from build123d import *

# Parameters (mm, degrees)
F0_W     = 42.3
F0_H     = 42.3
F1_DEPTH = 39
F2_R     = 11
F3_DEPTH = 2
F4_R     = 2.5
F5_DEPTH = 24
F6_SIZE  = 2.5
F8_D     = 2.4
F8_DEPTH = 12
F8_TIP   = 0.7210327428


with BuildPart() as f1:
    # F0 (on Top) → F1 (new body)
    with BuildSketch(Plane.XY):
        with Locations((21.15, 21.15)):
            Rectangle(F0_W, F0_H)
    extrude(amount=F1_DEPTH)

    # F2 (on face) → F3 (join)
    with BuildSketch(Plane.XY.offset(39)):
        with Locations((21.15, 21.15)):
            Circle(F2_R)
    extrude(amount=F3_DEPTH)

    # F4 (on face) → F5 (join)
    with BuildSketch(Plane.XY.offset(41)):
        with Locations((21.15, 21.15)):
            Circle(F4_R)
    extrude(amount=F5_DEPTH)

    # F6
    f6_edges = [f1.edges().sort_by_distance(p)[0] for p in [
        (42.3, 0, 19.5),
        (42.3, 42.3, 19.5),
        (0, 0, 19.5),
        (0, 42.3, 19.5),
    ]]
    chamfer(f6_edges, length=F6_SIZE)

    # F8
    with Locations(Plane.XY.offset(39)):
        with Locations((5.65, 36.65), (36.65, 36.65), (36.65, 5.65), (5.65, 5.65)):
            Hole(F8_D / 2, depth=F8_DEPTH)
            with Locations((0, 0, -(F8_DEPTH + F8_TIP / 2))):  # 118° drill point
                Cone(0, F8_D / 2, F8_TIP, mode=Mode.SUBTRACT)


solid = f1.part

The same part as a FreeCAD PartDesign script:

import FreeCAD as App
import Part
import Sketcher


def edges_at(feature, points):
    """Names of the edges that pass closest to the given points."""
    edges = feature.Shape.Edges
    near = lambda p: min(range(len(edges)), key=lambda i: edges[i].distToShape(Part.Vertex(*p))[0])
    return sorted({f"Edge{near(p) + 1}" for p in points})

doc = App.newDocument("Part")
body = doc.addObject("PartDesign::Body", "Body")

sketch1 = doc.addObject("Sketcher::SketchObject", "Sketch")
body.addObject(sketch1)
sketch1.AttachmentSupport = (doc.XY_Plane, [""])
sketch1.MapMode = "FlatFace"
sketch1.addGeometry(Part.LineSegment(App.Vector(0, 42, 0), App.Vector(0, 0, 0)), False)
sketch1.addGeometry(Part.LineSegment(App.Vector(0, 0, 0), App.Vector(42, 0, 0)), False)
sketch1.addGeometry(Part.LineSegment(App.Vector(42, 0, 0), App.Vector(42, 42, 0)), False)
sketch1.addGeometry(Part.LineSegment(App.Vector(42, 42, 0), App.Vector(0, 42, 0)), False)
sketch1.addConstraint(Sketcher.Constraint("Coincident", 0, 2, 1, 1))
sketch1.addConstraint(Sketcher.Constraint("Coincident", 1, 2, 2, 1))
sketch1.addConstraint(Sketcher.Constraint("Coincident", 2, 2, 3, 1))
sketch1.addConstraint(Sketcher.Constraint("Coincident", 3, 2, 0, 1))
sketch1.addConstraint(Sketcher.Constraint("Vertical", 0))
sketch1.addConstraint(Sketcher.Constraint("Horizontal", 1))
sketch1.addConstraint(Sketcher.Constraint("Vertical", 2))
sketch1.addConstraint(Sketcher.Constraint("Horizontal", 3))
sketch1.addConstraint(Sketcher.Constraint("Coincident", 0, 2, -1, 1))
sketch1.addConstraint(Sketcher.Constraint("Equal", 3, 0))
sketch1.addConstraint(Sketcher.Constraint("DistanceX", 1, 1, 1, 2, 42.3))
pad1 = doc.addObject("PartDesign::Pad", "Pad")
body.addObject(pad1)
pad1.Profile = sketch1
pad1.Length = 39

sketch2 = doc.addObject("Sketcher::SketchObject", "Sketch001")
body.addObject(sketch2)
sketch2.AttachmentSupport = (doc.XY_Plane, [""])
sketch2.MapMode = "FlatFace"
sketch2.AttachmentOffset = App.Placement(App.Vector(0, 0, 39), App.Rotation())
sketch2.addGeometry(Part.Circle(App.Vector(21, 21, 0), App.Vector(0, 0, 1), 11), False)
sketch2.addConstraint(Sketcher.Constraint("Diameter", 0, 22.0))
sketch2.addConstraint(Sketcher.Constraint("DistanceX", -1, 1, 0, 3, 21.15))
sketch2.addConstraint(Sketcher.Constraint("DistanceY", -1, 1, 0, 3, 21.15))
pad2 = doc.addObject("PartDesign::Pad", "Pad001")
body.addObject(pad2)
pad2.Profile = sketch2
pad2.Length = 2

sketch3 = doc.addObject("Sketcher::SketchObject", "Sketch002")
body.addObject(sketch3)
sketch3.AttachmentSupport = (doc.XY_Plane, [""])
sketch3.MapMode = "FlatFace"
sketch3.AttachmentOffset = App.Placement(App.Vector(0, 0, 41), App.Rotation())
sketch3.addGeometry(Part.Circle(App.Vector(21.1, 21.1, 0), App.Vector(0, 0, 1), 2.5), False)
sketch3.addConstraint(Sketcher.Constraint("Diameter", 0, 5.0))
sketch3.addConstraint(Sketcher.Constraint("DistanceX", -1, 1, 0, 3, 21.15))
sketch3.addConstraint(Sketcher.Constraint("DistanceY", -1, 1, 0, 3, 21.15))
pad3 = doc.addObject("PartDesign::Pad", "Pad002")
body.addObject(pad3)
pad3.Profile = sketch3
pad3.Length = 24
doc.recompute()

chamfer = doc.addObject("PartDesign::Chamfer", "Chamfer")
body.addObject(chamfer)
chamfer.Base = (pad3, edges_at(pad3, [
    (42.3, 0, 19.5),
    (42.3, 42.3, 19.5),
    (0, 0, 19.5),
    (0, 42.3, 19.5),
]))
chamfer.Size = 2.5

sketch4 = doc.addObject("Sketcher::SketchObject", "Sketch003")
body.addObject(sketch4)
sketch4.AttachmentSupport = (doc.XY_Plane, [""])
sketch4.MapMode = "FlatFace"
sketch4.AttachmentOffset = App.Placement(App.Vector(0, 0, 39), App.Rotation())
sketch4.addGeometry(Part.Circle(App.Vector(5.7, 36.6, 0), App.Vector(0, 0, 1), 1.2), False)
sketch4.addGeometry(Part.Circle(App.Vector(36.6, 36.6, 0), App.Vector(0, 0, 1), 1.2), False)
sketch4.addGeometry(Part.Circle(App.Vector(36.6, 5.7, 0), App.Vector(0, 0, 1), 1.2), False)
sketch4.addGeometry(Part.Circle(App.Vector(5.7, 5.7, 0), App.Vector(0, 0, 1), 1.2), False)
sketch4.addConstraint(Sketcher.Constraint("Equal", 0, 1))
sketch4.addConstraint(Sketcher.Constraint("Equal", 1, 2))
sketch4.addConstraint(Sketcher.Constraint("Equal", 2, 3))
sketch4.addConstraint(Sketcher.Constraint("Horizontal", 0, 3, 1, 3))
sketch4.addConstraint(Sketcher.Constraint("Horizontal", 2, 3, 3, 3))
sketch4.addConstraint(Sketcher.Constraint("Vertical", 1, 3, 2, 3))
sketch4.addConstraint(Sketcher.Constraint("Vertical", 0, 3, 3, 3))
sketch4.addConstraint(Sketcher.Constraint("Diameter", 0, 2.4))
sketch4.addConstraint(Sketcher.Constraint("DistanceX", 0, 3, 1, 3, 31.0))
sketch4.addConstraint(Sketcher.Constraint("DistanceY", 2, 3, 1, 3, 31.0))
sketch4.addConstraint(Sketcher.Constraint("DistanceX", -1, 1, 0, 3, 5.65))
sketch4.addConstraint(Sketcher.Constraint("DistanceY", -1, 1, 0, 3, 36.65))
doc.recompute()
hole = doc.addObject("PartDesign::Hole", "Hole")
body.addObject(hole)
hole.Profile = sketch4
hole.ThreadType = "None"
hole.Diameter = 2.4
hole.DepthType = "Dimension"
hole.Depth = 12
hole.DrillPoint = "Angled"
hole.DrillPointAngle = 118

doc.recompute()
